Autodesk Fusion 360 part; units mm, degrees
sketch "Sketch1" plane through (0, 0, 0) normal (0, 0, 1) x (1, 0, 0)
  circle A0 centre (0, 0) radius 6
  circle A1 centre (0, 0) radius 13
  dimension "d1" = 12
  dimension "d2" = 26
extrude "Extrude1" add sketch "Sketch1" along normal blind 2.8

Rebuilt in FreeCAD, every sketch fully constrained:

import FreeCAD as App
import Part
import Sketcher

V = App.Vector
Q = App.Units.Quantity

doc = App.newDocument("Part")
body = doc.addObject("PartDesign::Body", "Body")

sketch1 = doc.addObject("Sketcher::SketchObject", "Sketch")
body.addObject(sketch1)
sketch1.AttachmentSupport = (doc.XY_Plane, [""])
sketch1.MapMode = "FlatFace"
sketch1.addGeometry([
    Part.Circle(V(0, 0, 0), V(0, 0, 1), 13),
    Part.Circle(V(0, 0, 0), V(0, 0, 1), 6),
], False)
sketch1.addConstraint([
    Sketcher.Constraint("Coincident", 0, 3, -1, 1),
    Sketcher.Constraint("Coincident", 1, 3, -1, 1),
    Sketcher.Constraint("Diameter", 0, Q("26 mm")),
    Sketcher.Constraint("Diameter", 1, Q("12 mm")),
])
pad1 = doc.addObject("PartDesign::Pad", "Pad")
body.addObject(pad1)
pad1.Profile = sketch1
pad1.Length = 2.8

doc.recompute()
